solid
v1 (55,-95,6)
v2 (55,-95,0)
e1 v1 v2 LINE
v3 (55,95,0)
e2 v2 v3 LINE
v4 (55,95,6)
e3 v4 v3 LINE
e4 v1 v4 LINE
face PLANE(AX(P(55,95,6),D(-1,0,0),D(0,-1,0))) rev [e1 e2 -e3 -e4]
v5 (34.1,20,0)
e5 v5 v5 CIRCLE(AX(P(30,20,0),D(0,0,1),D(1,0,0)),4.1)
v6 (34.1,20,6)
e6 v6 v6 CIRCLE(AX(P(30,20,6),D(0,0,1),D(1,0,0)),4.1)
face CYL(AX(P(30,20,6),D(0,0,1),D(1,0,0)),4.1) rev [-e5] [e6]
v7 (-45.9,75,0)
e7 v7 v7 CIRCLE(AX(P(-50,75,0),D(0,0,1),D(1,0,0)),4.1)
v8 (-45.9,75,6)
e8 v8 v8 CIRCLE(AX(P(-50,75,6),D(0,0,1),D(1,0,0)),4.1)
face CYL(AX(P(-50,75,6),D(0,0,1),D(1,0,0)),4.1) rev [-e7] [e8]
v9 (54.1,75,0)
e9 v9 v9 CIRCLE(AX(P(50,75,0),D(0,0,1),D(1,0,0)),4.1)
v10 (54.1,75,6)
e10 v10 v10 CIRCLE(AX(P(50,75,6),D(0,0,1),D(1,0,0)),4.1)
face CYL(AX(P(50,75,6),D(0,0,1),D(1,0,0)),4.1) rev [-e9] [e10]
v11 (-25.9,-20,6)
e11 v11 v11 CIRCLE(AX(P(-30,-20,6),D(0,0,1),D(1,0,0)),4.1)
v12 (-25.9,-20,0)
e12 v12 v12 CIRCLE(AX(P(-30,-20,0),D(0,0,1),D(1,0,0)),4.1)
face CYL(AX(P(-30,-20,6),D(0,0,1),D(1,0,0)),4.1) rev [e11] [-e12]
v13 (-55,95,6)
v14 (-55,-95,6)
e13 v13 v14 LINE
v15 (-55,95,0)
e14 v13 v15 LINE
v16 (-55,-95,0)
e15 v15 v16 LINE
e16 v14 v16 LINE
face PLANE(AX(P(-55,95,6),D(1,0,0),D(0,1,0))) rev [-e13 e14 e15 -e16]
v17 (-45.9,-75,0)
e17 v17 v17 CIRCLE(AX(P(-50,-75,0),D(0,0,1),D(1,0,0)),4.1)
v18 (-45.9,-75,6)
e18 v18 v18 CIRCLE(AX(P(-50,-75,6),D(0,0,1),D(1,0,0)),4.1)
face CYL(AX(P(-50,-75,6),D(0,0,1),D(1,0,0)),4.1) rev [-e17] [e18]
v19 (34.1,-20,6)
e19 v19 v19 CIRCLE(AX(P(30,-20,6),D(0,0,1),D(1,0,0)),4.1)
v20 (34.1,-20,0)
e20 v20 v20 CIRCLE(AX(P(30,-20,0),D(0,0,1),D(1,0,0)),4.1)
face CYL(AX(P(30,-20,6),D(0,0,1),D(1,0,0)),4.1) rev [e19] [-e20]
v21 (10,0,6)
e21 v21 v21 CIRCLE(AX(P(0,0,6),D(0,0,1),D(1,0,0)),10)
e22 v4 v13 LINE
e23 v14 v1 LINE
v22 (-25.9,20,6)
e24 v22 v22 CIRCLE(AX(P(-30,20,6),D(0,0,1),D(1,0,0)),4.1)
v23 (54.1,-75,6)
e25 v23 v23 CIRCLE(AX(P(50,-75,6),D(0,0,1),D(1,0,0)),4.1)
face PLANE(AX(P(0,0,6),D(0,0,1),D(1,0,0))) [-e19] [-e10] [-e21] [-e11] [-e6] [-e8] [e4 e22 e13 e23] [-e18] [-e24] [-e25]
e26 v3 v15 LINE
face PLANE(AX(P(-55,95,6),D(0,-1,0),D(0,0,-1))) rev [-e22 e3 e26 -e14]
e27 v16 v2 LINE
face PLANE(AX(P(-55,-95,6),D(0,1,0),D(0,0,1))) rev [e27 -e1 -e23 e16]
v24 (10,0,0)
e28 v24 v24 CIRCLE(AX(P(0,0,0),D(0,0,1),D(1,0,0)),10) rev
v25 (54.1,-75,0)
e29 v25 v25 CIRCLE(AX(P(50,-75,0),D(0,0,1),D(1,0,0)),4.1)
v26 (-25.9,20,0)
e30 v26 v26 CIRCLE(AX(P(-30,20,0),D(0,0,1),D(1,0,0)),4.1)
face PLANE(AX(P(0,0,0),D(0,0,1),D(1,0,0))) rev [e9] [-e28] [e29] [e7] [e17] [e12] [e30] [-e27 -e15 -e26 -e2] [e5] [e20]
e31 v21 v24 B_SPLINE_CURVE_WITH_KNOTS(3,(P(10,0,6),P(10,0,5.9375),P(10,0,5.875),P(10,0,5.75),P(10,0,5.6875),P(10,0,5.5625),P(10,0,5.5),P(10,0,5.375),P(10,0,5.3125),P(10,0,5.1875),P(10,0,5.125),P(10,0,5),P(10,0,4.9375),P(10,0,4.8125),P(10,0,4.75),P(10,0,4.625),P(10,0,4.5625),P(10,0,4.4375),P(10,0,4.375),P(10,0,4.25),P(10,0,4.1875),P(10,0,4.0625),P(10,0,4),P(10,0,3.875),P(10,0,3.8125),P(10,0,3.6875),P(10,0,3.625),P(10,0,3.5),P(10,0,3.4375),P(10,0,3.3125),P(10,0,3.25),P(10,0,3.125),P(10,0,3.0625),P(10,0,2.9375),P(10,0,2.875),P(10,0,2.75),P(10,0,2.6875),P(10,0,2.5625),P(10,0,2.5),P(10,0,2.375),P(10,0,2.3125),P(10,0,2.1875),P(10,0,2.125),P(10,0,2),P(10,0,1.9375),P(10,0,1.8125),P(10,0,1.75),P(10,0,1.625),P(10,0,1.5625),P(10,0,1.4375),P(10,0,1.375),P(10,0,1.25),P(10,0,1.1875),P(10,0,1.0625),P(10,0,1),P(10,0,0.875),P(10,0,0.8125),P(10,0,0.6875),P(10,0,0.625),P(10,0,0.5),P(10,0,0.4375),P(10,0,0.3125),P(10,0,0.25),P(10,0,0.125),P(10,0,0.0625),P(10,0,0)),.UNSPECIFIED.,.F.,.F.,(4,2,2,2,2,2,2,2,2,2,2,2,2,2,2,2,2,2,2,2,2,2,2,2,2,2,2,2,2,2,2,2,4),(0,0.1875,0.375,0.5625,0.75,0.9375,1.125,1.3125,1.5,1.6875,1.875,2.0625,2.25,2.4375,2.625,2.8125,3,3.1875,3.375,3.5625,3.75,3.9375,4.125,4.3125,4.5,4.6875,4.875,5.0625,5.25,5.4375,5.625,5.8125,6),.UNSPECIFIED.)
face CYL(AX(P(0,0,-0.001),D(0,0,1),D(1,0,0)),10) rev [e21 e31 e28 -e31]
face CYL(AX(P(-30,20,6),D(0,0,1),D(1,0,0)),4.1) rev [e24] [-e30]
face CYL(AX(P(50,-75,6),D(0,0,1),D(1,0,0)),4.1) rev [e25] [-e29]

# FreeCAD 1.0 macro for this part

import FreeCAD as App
import Part
import Sketcher
from FreeCAD import Vector
Q = App.Units.Quantity

doc = App.newDocument("Part")
body = doc.addObject("PartDesign::Body", "Body")

# Sketch on XY plane
sketch1 = doc.addObject("Sketcher::SketchObject", "Sketch")
body.addObject(sketch1)
sketch1.AttachmentSupport = (doc.XY_Plane, [""])
sketch1.MapMode = "FlatFace"
sketch1.addGeometry([
    Part.LineSegment(Vector(-55, 95, 0), Vector(-55, -95, 0)),
    Part.LineSegment(Vector(-55, -95, 0), Vector(55, -95, 0)),
    Part.LineSegment(Vector(55, -95, 0), Vector(55, 95, 0)),
    Part.LineSegment(Vector(55, 95, 0), Vector(-55, 95, 0)),
], False)
sketch1.addConstraint([
    Sketcher.Constraint("Coincident", 0, 2, 1, 1),
    Sketcher.Constraint("Coincident", 1, 2, 2, 1),
    Sketcher.Constraint("Coincident", 2, 2, 3, 1),
    Sketcher.Constraint("Coincident", 3, 2, 0, 1),
    Sketcher.Constraint("Vertical", 0),
    Sketcher.Constraint("Horizontal", 1),
    Sketcher.Constraint("Vertical", 2),
    Sketcher.Constraint("Horizontal", 3),
    Sketcher.Constraint("Symmetric", 0, 2, 2, 2, -1, 1),
    Sketcher.Constraint("DistanceX", 1, 1, 1, 2, Q("110 mm")),
    Sketcher.Constraint("DistanceY", 0, 2, 0, 1, Q("190 mm")),
])
pad1 = doc.addObject("PartDesign::Pad", "Pad")
body.addObject(pad1)
pad1.Profile = sketch1
pad1.Length = 6

# Sketch on XY plane
sketch2 = doc.addObject("Sketcher::SketchObject", "Sketch001")
body.addObject(sketch2)
sketch2.AttachmentSupport = (doc.XY_Plane, [""])
sketch2.MapMode = "FlatFace"
sketch2.AttachmentOffset = App.Placement(Vector(0, 0, 6), App.Rotation())
sketch2.addGeometry([
    Part.Circle(Vector(-50, 75, 0), Vector(0, 0, 1), 4.1),
    Part.Circle(Vector(50, 75, 0), Vector(0, 0, 1), 4.1),
    Part.Circle(Vector(50, -75, 0), Vector(0, 0, 1), 4.1),
    Part.Circle(Vector(-50, -75, 0), Vector(0, 0, 1), 4.1),
], False)
sketch2.addConstraint([
    Sketcher.Constraint("Equal", 0, 1),
    Sketcher.Constraint("Equal", 1, 2),
    Sketcher.Constraint("Equal", 2, 3),
    Sketcher.Constraint("Symmetric", 0, 3, 2, 3, -1, 1),
    Sketcher.Constraint("Symmetric", 1, 3, 3, 3, -1, 1),
    Sketcher.Constraint("Symmetric", 0, 3, 1, 3, -2),
    Sketcher.Constraint("Diameter", 0, Q("8.2 mm")),
    Sketcher.Constraint("DistanceX", 0, 3, -1, 1, Q("50 mm")),
    Sketcher.Constraint("DistanceY", -1, 1, 0, 3, Q("75 mm")),
])
doc.recompute()
hole = doc.addObject("PartDesign::Hole", "Hole")
body.addObject(hole)
hole.Profile = sketch2
hole.ThreadType = "None"
hole.Diameter = 8.2
hole.DepthType = "ThroughAll"

# Sketch on XY plane
sketch3 = doc.addObject("Sketcher::SketchObject", "Sketch002")
body.addObject(sketch3)
sketch3.AttachmentSupport = (doc.XY_Plane, [""])
sketch3.MapMode = "FlatFace"
sketch3.AttachmentOffset = App.Placement(Vector(0, 0, 6), App.Rotation())
sketch3.addGeometry(Part.Circle(Vector(0, 0, 0), Vector(0, 0, 1), 10), False)
sketch3.addConstraint([
    Sketcher.Constraint("Coincident", 0, 3, -1, 1),
    Sketcher.Constraint("Diameter", 0, Q("20 mm")),
])
pocket1 = doc.addObject("PartDesign::Pocket", "Pocket")
body.addObject(pocket1)
pocket1.Profile = sketch3
pocket1.Type = "UpToFirst"

# Sketch on XY plane
sketch4 = doc.addObject("Sketcher::SketchObject", "Sketch003")
body.addObject(sketch4)
sketch4.AttachmentSupport = (doc.XY_Plane, [""])
sketch4.MapMode = "FlatFace"
sketch4.AttachmentOffset = App.Placement(Vector(0, 0, 6), App.Rotation())
sketch4.addGeometry([
    Part.Circle(Vector(-30, 20, 0), Vector(0, 0, 1), 4.1),
    Part.Circle(Vector(30, 20, 0), Vector(0, 0, 1), 4.1),
    Part.Circle(Vector(30, -20, 0), Vector(0, 0, 1), 4.1),
    Part.Circle(Vector(-30, -20, 0), Vector(0, 0, 1), 4.1),
], False)
sketch4.addConstraint([
    Sketcher.Constraint("Equal", 0, 1),
    Sketcher.Constraint("Equal", 1, 2),
    Sketcher.Constraint("Equal", 2, 3),
    Sketcher.Constraint("Symmetric", 0, 3, 2, 3, -1, 1),
    Sketcher.Constraint("Symmetric", 1, 3, 3, 3, -1, 1),
    Sketcher.Constraint("Symmetric", 0, 3, 1, 3, -2),
    Sketcher.Constraint("Diameter", 0, Q("8.2 mm")),
    Sketcher.Constraint("DistanceX", 0, 3, -1, 1, Q("30 mm")),
    Sketcher.Constraint("DistanceY", -1, 1, 0, 3, Q("20 mm")),
])
doc.recompute()
hole2 = doc.addObject("PartDesign::Hole", "Hole001")
body.addObject(hole2)
hole2.Profile = sketch4
hole2.ThreadType = "None"
hole2.Diameter = 8.2
hole2.DepthType = "Dimension"
hole2.Depth = 19.75
hole2.DrillPoint = "Angled"
hole2.DrillPointAngle = 118

doc.recompute()
